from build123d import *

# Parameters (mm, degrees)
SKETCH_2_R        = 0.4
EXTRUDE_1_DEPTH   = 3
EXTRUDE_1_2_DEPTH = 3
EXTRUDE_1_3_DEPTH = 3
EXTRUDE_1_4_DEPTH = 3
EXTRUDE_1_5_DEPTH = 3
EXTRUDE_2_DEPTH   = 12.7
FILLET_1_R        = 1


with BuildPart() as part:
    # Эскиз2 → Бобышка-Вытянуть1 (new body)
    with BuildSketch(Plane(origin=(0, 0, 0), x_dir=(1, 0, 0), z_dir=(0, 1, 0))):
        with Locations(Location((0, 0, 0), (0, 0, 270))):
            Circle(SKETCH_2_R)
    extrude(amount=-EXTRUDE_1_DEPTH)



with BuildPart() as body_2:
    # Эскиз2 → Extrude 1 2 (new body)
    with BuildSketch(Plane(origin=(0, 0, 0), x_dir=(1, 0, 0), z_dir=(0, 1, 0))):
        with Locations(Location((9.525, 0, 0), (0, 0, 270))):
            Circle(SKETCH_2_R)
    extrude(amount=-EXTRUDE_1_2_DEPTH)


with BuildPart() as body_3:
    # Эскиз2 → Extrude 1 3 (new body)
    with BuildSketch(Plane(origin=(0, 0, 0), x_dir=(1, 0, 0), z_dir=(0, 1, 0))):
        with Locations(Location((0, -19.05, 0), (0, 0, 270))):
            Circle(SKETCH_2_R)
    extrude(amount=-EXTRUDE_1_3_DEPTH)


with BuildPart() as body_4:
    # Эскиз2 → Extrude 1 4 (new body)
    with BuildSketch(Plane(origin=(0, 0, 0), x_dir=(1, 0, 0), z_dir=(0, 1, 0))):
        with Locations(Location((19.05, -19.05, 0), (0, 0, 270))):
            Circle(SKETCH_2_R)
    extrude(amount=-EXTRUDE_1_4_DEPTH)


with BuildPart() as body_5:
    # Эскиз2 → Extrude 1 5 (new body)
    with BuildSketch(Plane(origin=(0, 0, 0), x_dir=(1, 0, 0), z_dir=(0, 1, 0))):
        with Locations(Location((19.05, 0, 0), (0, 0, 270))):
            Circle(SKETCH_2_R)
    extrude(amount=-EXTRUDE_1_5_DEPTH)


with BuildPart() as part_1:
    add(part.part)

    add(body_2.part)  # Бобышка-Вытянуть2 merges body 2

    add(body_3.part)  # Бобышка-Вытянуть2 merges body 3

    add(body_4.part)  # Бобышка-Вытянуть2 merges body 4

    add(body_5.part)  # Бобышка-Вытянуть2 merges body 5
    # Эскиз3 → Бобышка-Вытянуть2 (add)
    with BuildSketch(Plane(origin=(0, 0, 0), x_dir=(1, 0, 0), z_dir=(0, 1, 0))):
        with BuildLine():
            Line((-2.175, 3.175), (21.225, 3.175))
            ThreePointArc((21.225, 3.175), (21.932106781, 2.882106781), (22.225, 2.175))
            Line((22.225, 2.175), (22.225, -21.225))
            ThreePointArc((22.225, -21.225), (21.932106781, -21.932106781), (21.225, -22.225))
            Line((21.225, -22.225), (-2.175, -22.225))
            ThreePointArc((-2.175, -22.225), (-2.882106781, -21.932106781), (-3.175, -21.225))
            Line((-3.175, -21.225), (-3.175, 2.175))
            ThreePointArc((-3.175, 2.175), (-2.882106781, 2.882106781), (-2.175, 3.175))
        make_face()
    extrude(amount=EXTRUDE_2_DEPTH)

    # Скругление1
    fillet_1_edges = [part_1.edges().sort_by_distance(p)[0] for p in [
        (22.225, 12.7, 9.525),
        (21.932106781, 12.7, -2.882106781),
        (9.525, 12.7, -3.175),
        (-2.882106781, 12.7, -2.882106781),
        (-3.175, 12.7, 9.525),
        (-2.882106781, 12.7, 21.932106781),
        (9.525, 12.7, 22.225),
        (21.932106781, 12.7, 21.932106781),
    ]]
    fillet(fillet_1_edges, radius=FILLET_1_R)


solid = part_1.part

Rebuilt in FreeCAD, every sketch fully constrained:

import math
import FreeCAD as App
import Part
import Sketcher


def edges_at(feature, points):
    """Names of the edges that pass closest to the given points."""
    edges = feature.Shape.Edges
    near = lambda p: min(range(len(edges)), key=lambda i: edges[i].distToShape(Part.Vertex(*p))[0])
    return sorted({f"Edge{near(p) + 1}" for p in points})

doc = App.newDocument("Part")
body = doc.addObject("PartDesign::Body", "Body")

# Sketch on XZ plane
sketch1 = doc.addObject("Sketcher::SketchObject", "Sketch")
body.addObject(sketch1)
sketch1.AttachmentSupport = (doc.XZ_Plane, [""])
sketch1.MapMode = "FlatFace"
sketch1.addGeometry(Part.Circle(App.Vector(0, 0, 0), App.Vector(0, 0, 1), 0.4), False)
sketch1.addConstraint([
    Sketcher.Constraint("Coincident", 0, 3, -1, 1),
    Sketcher.Constraint("Diameter", 0, 0.8),
])
pad1 = doc.addObject("PartDesign::Pad", "Pad")
body.addObject(pad1)
pad1.Profile = sketch1
pad1.Length = 3
body2 = doc.addObject("PartDesign::Body", "Body001")

# Sketch on XZ plane
sketch2 = doc.addObject("Sketcher::SketchObject", "Sketch001")
body2.addObject(sketch2)
sketch2.AttachmentSupport = (doc.getObject("XZ_Plane001"), [""])
sketch2.MapMode = "FlatFace"
sketch2.addGeometry(Part.Circle(App.Vector(9.525, 0, 0), App.Vector(0, 0, 1), 0.4), False)
sketch2.addConstraint([
    Sketcher.Constraint("PointOnObject", 0, 3, -1),
    Sketcher.Constraint("Diameter", 0, 0.8),
    Sketcher.Constraint("DistanceX", -1, 1, 0, 3, 9.525),
])
pad2 = doc.addObject("PartDesign::Pad", "Pad001")
body2.addObject(pad2)
pad2.Profile = sketch2
pad2.Length = 3
body3 = doc.addObject("PartDesign::Body", "Body002")

# Sketch on XZ plane
sketch3 = doc.addObject("Sketcher::SketchObject", "Sketch002")
body3.addObject(sketch3)
sketch3.AttachmentSupport = (doc.getObject("XZ_Plane002"), [""])
sketch3.MapMode = "FlatFace"
sketch3.addGeometry(Part.Circle(App.Vector(0, 19.05, 0), App.Vector(0, 0, 1), 0.4), False)
sketch3.addConstraint([
    Sketcher.Constraint("PointOnObject", 0, 3, -2),
    Sketcher.Constraint("Diameter", 0, 0.8),
    Sketcher.Constraint("DistanceY", -1, 1, 0, 3, 19.05),
])
pad3 = doc.addObject("PartDesign::Pad", "Pad002")
body3.addObject(pad3)
pad3.Profile = sketch3
pad3.Length = 3
body4 = doc.addObject("PartDesign::Body", "Body003")

# Sketch on XZ plane
sketch4 = doc.addObject("Sketcher::SketchObject", "Sketch003")
body4.addObject(sketch4)
sketch4.AttachmentSupport = (doc.getObject("XZ_Plane003"), [""])
sketch4.MapMode = "FlatFace"
sketch4.addGeometry(Part.Circle(App.Vector(19.05, 19.05, 0), App.Vector(0, 0, 1), 0.4), False)
sketch4.addConstraint([
    Sketcher.Constraint("Diameter", 0, 0.8),
    Sketcher.Constraint("DistanceX", -1, 1, 0, 3, 19.05),
    Sketcher.Constraint("DistanceY", -1, 1, 0, 3, 19.05),
])
pad4 = doc.addObject("PartDesign::Pad", "Pad003")
body4.addObject(pad4)
pad4.Profile = sketch4
pad4.Length = 3
body5 = doc.addObject("PartDesign::Body", "Body004")

# Sketch on XZ plane
sketch5 = doc.addObject("Sketcher::SketchObject", "Sketch004")
body5.addObject(sketch5)
sketch5.AttachmentSupport = (doc.getObject("XZ_Plane004"), [""])
sketch5.MapMode = "FlatFace"
sketch5.addGeometry(Part.Circle(App.Vector(19.05, 0, 0), App.Vector(0, 0, 1), 0.4), False)
sketch5.addConstraint([
    Sketcher.Constraint("PointOnObject", 0, 3, -1),
    Sketcher.Constraint("Diameter", 0, 0.8),
    Sketcher.Constraint("DistanceX", -1, 1, 0, 3, 19.05),
])
pad5 = doc.addObject("PartDesign::Pad", "Pad004")
body5.addObject(pad5)
pad5.Profile = sketch5
pad5.Length = 3
body.AllowCompound = True
doc.recompute()

boolean = doc.addObject("PartDesign::Boolean", "Boolean")
body.addObject(boolean)
boolean.Type = "Fuse"
boolean.addObjects([body2])
doc.recompute()

boolean2 = doc.addObject("PartDesign::Boolean", "Boolean001")
body.addObject(boolean2)
boolean2.Type = "Fuse"
boolean2.addObjects([body3])
doc.recompute()

boolean3 = doc.addObject("PartDesign::Boolean", "Boolean002")
body.addObject(boolean3)
boolean3.Type = "Fuse"
boolean3.addObjects([body4])
doc.recompute()

boolean4 = doc.addObject("PartDesign::Boolean", "Boolean003")
body.addObject(boolean4)
boolean4.Type = "Fuse"
boolean4.addObjects([body5])

# Sketch on XZ plane
sketch6 = doc.addObject("Sketcher::SketchObject", "Sketch005")
body.addObject(sketch6)
sketch6.AttachmentSupport = (doc.XZ_Plane, [""])
sketch6.MapMode = "FlatFace"
sketch6.addGeometry([
    Part.LineSegment(App.Vector(21.225, -3.175, 0), App.Vector(-2.175, -3.175, 0)),  # 0
    Part.ArcOfCircle(Part.Circle(App.Vector(-2.175, -2.175, 0), App.Vector(0, 0, 1), 1), math.radians(-180), math.radians(-90)),  # 1
    Part.LineSegment(App.Vector(-3.175, -2.175, 0), App.Vector(-3.175, 21.225, 0)),  # 2
    Part.ArcOfCircle(Part.Circle(App.Vector(-2.175, 21.225, 0), App.Vector(0, 0, 1), 1), math.radians(90), math.radians(180)),  # 3
    Part.LineSegment(App.Vector(-2.175, 22.225, 0), App.Vector(21.225, 22.225, 0)),  # 4
    Part.ArcOfCircle(Part.Circle(App.Vector(21.225, 21.225, 0), App.Vector(0, 0, 1), 1), math.radians(0), math.radians(90)),  # 5
    Part.LineSegment(App.Vector(22.225, 21.225, 0), App.Vector(22.225, -2.175, 0)),  # 6
    Part.ArcOfCircle(Part.Circle(App.Vector(21.225, -2.175, 0), App.Vector(0, 0, 1), 1), math.radians(-90), math.radians(0)),  # 7
], False)
sketch6.addConstraint([
    Sketcher.Constraint("Tangent", 0, 2, 1, 2),
    Sketcher.Constraint("Tangent", 1, 1, 2, 1),
    Sketcher.Constraint("Tangent", 2, 2, 3, 2),
    Sketcher.Constraint("Tangent", 3, 1, 4, 1),
    Sketcher.Constraint("Tangent", 4, 2, 5, 2),
    Sketcher.Constraint("Tangent", 5, 1, 6, 1),
    Sketcher.Constraint("Tangent", 6, 2, 7, 2),
    Sketcher.Constraint("Tangent", 7, 1, 0, 1),
    Sketcher.Constraint("Horizontal", 0),
    Sketcher.Constraint("Vertical", 2),
    Sketcher.Constraint("Horizontal", 4),
    Sketcher.Constraint("Vertical", 6),
    Sketcher.Constraint("Equal", 1, 3),
    Sketcher.Constraint("Equal", 3, 5),
    Sketcher.Constraint("Equal", 5, 7),
    Sketcher.Constraint("Equal", 4, 2),
    Sketcher.Constraint("Radius", 1, 1.0),
    Sketcher.Constraint("DistanceX", 0, 2, 0, 1, 23.4),
    Sketcher.Constraint("DistanceX", 1, 3, -1, 1, 2.175),
    Sketcher.Constraint("DistanceY", 1, 3, -1, 1, 2.175),
])
pad6 = doc.addObject("PartDesign::Pad", "Pad005")
body.addObject(pad6)
pad6.Profile = sketch6
pad6.Length = 12.7
pad6.Reversed = True
doc.recompute()

fillet = doc.addObject("PartDesign::Fillet", "Fillet")
body.addObject(fillet)
fillet.Base = (pad6, edges_at(pad6, [
    (22.225, 12.7, 9.525),
    (21.932, 12.7, -2.882),
    (9.525, 12.7, -3.175),
    (-2.882, 12.7, -2.882),
    (-3.175, 12.7, 9.525),
    (-2.882, 12.7, 21.932),
    (9.525, 12.7, 22.225),
    (21.932, 12.7, 21.932),
]))
fillet.Radius = 1

doc.recompute()
